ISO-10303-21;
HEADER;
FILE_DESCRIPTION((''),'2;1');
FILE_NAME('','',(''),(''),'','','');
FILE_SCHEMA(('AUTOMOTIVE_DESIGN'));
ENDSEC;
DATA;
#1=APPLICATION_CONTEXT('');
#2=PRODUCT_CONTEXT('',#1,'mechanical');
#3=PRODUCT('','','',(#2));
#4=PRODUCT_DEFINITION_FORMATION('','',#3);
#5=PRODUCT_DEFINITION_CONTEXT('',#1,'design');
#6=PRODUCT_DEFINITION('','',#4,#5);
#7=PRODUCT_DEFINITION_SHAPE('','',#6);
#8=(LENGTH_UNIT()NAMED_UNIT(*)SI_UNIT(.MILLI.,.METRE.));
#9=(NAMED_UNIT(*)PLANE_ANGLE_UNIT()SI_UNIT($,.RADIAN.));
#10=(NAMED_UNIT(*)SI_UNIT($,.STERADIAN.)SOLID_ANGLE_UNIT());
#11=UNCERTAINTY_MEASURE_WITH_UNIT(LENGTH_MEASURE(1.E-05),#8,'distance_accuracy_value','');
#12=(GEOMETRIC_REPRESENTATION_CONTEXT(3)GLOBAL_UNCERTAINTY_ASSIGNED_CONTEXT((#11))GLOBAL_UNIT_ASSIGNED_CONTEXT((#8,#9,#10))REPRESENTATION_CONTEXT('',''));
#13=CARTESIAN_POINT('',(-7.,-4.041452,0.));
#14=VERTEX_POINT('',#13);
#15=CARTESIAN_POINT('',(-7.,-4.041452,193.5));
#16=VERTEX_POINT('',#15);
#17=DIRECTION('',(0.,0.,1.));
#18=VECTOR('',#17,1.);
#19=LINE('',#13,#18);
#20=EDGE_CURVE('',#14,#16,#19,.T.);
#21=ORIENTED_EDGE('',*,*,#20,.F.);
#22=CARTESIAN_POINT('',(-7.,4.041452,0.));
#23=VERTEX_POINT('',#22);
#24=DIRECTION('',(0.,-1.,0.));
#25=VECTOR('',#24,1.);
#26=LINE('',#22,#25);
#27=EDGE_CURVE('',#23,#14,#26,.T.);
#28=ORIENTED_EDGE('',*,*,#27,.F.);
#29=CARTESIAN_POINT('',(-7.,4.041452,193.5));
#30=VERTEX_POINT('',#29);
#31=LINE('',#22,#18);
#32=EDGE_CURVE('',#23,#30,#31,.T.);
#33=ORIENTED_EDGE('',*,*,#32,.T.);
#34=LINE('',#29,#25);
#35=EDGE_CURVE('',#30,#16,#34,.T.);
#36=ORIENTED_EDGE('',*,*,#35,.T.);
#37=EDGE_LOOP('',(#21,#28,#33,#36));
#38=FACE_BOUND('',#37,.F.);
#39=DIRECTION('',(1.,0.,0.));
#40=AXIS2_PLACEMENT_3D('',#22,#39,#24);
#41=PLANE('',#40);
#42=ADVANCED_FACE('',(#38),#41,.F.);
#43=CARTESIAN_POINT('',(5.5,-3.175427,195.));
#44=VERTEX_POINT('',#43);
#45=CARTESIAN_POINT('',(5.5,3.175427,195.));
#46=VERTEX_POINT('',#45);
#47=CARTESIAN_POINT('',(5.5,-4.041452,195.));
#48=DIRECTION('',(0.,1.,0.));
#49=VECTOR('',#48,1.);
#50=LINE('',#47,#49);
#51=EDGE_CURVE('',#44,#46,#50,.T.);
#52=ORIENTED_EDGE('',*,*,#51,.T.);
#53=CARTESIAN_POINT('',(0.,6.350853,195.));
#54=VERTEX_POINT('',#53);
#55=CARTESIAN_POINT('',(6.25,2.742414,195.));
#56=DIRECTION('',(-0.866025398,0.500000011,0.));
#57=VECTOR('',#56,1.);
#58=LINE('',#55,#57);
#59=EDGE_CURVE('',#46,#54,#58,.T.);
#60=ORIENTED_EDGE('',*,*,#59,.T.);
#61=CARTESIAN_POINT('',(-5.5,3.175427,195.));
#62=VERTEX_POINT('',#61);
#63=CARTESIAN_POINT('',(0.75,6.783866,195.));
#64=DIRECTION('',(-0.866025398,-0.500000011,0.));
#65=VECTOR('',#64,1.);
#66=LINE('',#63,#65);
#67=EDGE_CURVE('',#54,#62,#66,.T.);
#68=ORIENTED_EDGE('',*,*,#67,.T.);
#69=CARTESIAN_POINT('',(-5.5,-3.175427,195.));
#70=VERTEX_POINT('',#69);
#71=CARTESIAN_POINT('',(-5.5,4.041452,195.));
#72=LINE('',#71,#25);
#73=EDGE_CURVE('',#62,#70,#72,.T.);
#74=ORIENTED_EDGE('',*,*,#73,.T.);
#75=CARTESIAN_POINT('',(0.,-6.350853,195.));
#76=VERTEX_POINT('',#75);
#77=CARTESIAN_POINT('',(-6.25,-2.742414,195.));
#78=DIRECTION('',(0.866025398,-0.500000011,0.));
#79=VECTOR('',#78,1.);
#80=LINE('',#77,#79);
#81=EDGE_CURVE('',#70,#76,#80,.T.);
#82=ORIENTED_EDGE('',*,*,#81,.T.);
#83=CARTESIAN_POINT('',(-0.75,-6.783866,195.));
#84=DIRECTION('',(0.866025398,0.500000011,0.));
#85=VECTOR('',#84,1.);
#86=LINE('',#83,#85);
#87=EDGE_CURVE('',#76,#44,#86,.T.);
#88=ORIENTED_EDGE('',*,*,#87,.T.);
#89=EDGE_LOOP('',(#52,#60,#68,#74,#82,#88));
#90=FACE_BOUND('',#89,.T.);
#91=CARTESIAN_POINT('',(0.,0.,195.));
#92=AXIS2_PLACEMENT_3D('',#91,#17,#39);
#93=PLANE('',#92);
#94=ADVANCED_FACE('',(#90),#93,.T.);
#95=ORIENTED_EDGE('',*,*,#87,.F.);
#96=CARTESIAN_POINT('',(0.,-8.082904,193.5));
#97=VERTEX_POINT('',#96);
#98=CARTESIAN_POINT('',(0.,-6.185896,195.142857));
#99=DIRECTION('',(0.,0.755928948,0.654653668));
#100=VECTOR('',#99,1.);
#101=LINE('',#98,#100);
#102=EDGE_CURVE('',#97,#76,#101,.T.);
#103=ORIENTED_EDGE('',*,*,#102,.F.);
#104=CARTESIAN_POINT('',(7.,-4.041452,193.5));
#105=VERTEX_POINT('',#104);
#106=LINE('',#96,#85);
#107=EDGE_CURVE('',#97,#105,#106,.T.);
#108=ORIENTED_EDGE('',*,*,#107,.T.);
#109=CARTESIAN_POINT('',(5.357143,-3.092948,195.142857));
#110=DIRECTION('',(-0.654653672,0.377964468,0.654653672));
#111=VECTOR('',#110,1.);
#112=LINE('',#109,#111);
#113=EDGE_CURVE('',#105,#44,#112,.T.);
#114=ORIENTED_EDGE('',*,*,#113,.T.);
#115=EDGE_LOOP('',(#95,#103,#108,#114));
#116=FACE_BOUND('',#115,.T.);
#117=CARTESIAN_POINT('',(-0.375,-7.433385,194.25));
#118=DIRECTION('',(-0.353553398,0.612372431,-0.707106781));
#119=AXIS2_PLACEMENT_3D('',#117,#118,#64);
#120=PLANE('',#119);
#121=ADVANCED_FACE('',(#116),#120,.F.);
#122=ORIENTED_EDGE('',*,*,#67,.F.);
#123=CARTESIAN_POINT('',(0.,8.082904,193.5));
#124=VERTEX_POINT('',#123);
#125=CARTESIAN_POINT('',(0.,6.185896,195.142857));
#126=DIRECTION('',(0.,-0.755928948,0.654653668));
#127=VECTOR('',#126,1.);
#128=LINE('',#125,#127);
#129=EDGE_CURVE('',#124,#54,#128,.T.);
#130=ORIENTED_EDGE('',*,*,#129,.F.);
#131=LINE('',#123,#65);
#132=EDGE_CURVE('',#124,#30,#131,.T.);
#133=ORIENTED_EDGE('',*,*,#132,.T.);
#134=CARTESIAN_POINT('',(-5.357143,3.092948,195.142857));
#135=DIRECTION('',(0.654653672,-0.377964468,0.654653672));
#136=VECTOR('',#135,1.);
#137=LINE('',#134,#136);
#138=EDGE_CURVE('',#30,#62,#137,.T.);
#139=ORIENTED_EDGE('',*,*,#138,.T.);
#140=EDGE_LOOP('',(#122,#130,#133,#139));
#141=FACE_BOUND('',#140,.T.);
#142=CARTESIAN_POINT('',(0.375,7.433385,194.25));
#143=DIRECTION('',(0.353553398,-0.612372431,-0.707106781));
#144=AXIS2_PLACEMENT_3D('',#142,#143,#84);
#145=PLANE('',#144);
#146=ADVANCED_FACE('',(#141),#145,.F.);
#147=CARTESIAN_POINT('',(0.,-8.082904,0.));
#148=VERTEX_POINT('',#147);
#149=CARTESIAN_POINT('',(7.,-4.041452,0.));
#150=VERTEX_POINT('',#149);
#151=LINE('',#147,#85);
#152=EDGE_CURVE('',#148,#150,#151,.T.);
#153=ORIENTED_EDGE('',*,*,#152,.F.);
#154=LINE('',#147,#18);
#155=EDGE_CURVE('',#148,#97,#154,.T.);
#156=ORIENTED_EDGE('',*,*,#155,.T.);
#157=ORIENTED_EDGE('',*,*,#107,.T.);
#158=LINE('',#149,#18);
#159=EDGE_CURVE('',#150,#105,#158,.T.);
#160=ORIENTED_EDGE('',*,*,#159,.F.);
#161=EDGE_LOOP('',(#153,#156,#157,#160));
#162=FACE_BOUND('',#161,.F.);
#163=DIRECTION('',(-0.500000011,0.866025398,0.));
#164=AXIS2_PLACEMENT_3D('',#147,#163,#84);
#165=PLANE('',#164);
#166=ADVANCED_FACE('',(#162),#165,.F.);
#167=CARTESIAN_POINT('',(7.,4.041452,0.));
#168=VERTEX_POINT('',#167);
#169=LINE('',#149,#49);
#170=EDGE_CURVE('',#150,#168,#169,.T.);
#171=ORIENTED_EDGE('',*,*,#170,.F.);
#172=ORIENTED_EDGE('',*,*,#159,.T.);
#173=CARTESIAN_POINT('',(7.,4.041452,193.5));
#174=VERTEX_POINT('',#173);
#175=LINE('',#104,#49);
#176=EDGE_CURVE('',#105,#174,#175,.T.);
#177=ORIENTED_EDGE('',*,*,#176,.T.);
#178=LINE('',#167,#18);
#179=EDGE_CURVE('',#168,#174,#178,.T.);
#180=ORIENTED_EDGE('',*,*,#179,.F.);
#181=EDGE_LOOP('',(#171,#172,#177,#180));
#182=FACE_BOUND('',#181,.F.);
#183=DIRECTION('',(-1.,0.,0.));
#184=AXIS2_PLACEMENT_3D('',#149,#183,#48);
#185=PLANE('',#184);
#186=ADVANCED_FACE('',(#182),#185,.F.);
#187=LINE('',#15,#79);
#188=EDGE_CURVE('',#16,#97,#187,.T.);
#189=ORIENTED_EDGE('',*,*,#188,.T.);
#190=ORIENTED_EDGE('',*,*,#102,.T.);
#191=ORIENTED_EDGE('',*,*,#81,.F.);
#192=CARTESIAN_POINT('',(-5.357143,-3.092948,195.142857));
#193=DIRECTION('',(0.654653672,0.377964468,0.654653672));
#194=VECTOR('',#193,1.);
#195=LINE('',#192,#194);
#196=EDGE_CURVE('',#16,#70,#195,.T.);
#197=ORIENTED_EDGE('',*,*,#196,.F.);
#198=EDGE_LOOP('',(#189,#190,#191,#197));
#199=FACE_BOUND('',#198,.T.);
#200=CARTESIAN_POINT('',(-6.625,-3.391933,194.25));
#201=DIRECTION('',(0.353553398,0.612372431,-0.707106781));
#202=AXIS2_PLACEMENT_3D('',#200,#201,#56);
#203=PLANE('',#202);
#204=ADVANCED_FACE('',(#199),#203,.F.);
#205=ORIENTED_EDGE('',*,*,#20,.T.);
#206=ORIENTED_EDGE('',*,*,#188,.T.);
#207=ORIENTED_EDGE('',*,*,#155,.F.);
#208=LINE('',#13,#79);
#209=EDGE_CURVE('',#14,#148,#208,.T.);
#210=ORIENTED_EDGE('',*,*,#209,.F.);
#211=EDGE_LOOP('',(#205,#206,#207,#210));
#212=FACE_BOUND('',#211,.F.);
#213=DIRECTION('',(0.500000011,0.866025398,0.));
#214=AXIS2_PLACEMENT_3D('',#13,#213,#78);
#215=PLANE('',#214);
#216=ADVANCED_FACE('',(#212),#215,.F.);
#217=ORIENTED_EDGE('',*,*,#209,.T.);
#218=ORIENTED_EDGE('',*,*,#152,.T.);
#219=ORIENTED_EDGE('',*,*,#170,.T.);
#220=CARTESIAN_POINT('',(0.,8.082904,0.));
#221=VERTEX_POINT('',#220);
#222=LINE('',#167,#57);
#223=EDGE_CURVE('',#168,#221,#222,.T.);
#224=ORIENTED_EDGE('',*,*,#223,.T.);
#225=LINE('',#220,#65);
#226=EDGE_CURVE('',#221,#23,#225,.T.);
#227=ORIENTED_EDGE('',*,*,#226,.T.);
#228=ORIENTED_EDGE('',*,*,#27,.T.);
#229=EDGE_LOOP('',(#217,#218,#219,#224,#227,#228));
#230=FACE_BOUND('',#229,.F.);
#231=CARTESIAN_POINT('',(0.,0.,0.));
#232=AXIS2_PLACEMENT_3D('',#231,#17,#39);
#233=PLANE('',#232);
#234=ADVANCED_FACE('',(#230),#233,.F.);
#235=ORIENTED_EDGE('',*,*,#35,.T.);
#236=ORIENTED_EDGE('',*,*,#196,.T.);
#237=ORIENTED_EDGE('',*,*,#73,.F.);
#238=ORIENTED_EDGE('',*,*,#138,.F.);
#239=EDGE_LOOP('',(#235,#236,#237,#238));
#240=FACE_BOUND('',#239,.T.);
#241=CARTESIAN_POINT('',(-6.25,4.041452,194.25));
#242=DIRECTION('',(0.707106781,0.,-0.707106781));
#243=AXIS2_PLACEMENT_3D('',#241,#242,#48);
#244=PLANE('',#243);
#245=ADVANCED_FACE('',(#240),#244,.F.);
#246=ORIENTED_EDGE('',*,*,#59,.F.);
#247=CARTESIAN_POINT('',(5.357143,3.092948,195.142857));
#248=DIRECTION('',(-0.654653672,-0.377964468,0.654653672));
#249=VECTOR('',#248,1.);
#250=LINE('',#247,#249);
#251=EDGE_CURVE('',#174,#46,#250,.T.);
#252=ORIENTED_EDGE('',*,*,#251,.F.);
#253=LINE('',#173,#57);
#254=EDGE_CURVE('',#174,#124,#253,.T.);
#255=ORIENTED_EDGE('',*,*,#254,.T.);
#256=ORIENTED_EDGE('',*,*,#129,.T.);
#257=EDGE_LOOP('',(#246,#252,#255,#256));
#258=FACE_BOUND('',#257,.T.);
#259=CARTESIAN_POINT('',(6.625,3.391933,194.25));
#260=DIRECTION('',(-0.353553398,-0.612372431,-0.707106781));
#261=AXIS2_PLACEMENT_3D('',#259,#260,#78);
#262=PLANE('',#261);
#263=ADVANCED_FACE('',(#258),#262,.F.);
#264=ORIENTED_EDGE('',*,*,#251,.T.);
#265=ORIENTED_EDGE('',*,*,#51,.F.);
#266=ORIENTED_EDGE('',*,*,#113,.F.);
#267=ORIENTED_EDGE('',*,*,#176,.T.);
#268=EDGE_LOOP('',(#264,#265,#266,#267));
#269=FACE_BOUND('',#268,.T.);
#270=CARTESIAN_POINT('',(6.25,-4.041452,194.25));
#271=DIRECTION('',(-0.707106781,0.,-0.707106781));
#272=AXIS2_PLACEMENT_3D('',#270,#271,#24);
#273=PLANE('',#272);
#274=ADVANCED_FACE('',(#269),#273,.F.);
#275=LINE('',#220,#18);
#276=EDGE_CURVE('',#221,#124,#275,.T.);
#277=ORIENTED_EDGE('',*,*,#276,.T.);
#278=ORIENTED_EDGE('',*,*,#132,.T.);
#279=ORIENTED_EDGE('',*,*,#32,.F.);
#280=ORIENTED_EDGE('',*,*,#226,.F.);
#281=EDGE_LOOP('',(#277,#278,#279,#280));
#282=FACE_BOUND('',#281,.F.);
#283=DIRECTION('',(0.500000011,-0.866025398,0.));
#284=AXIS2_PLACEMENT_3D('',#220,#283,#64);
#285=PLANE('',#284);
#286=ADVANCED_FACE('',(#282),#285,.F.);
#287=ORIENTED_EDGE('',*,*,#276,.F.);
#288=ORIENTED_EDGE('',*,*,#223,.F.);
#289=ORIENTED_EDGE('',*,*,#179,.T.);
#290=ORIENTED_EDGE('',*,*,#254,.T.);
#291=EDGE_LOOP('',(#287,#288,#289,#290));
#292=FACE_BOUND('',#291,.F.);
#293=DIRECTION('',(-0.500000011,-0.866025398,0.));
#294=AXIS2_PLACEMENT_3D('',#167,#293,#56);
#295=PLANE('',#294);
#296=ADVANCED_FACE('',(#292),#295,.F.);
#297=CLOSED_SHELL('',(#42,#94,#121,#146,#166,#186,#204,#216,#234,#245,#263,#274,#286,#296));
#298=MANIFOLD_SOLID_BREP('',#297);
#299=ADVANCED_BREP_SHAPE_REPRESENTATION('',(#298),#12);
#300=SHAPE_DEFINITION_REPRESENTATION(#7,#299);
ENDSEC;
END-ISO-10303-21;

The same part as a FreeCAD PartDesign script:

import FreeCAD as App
import Part
import Sketcher
Q = App.Units.Quantity


def edges_at(feature, points):
    """Names of the edges that pass closest to the given points."""
    edges = feature.Shape.Edges
    near = lambda p: min(range(len(edges)), key=lambda i: edges[i].distToShape(Part.Vertex(*p))[0])
    return sorted({f"Edge{near(p) + 1}" for p in points})

doc = App.newDocument("Part")
params = doc.addObject("Spreadsheet::Sheet", "Params")
for row, (alias, value) in enumerate([
    ("pad1_length", "195 mm"),
    ("chamfer_size", "1.5 mm"),
], start=1):
    params.set(f"A{row}", alias)
    params.set(f"B{row}", "=" + value)
    params.setAlias(f"B{row}", alias)

body = doc.addObject("PartDesign::Body", "Body")

sketch1 = doc.addObject("Sketcher::SketchObject", "Sketch")
body.addObject(sketch1)
sketch1.AttachmentSupport = (doc.XY_Plane, [""])
sketch1.MapMode = "FlatFace"
sketch1.addGeometry(Part.LineSegment(App.Vector(7, -4, 0), App.Vector(7, 4, 0)), False)
sketch1.addGeometry(Part.LineSegment(App.Vector(7, 4, 0), App.Vector(0, 8, 0)), False)
sketch1.addGeometry(Part.LineSegment(App.Vector(0, 8, 0), App.Vector(-7, 4, 0)), False)
sketch1.addGeometry(Part.LineSegment(App.Vector(-7, 4, 0), App.Vector(-7, -4, 0)), False)
sketch1.addGeometry(Part.LineSegment(App.Vector(-7, -4, 0), App.Vector(0, -8, 0)), False)
sketch1.addGeometry(Part.LineSegment(App.Vector(0, -8, 0), App.Vector(7, -4, 0)), False)
sketch1.addConstraint(Sketcher.Constraint("Coincident", 0, 2, 1, 1))
sketch1.addConstraint(Sketcher.Constraint("Coincident", 1, 2, 2, 1))
sketch1.addConstraint(Sketcher.Constraint("Coincident", 2, 2, 3, 1))
sketch1.addConstraint(Sketcher.Constraint("Coincident", 3, 2, 4, 1))
sketch1.addConstraint(Sketcher.Constraint("Coincident", 4, 2, 5, 1))
sketch1.addConstraint(Sketcher.Constraint("Coincident", 5, 2, 0, 1))
sketch1.addConstraint(Sketcher.Constraint("Vertical", 0))
sketch1.addConstraint(Sketcher.Constraint("Vertical", 3))
sketch1.addConstraint(Sketcher.Constraint("Symmetric", 0, 2, 3, 2, -1, 1))
sketch1.addConstraint(Sketcher.Constraint("Symmetric", 1, 2, 4, 2, -1, 1))
sketch1.addConstraint(Sketcher.Constraint("PointOnObject", 1, 2, -2))
sketch1.addConstraint(Sketcher.Constraint("Parallel", 2, 5))
sketch1.addConstraint(Sketcher.Constraint("Horizontal", 0, 2, 2, 2))
sketch1.addConstraint(Sketcher.Constraint("Angle", 1, Q("149.999999 deg")))
sketch1.addConstraint(Sketcher.Constraint("DistanceX", -1, 1, 0, 2, 7.0))
sketch1.addConstraint(Sketcher.Constraint("DistanceY", 0, 1, 0, 2, 8.082904))
pad1 = doc.addObject("PartDesign::Pad", "Pad")
body.addObject(pad1)
pad1.Profile = sketch1
pad1.setExpression("Length", "Params.pad1_length")
doc.recompute()

chamfer = doc.addObject("PartDesign::Chamfer", "Chamfer")
body.addObject(chamfer)
chamfer.Base = (pad1, edges_at(pad1, [
    (-3.5, -6.062, 195),
    (3.5, -6.062, 195),
    (7, 0, 195),
    (3.5, 6.062, 195),
    (-3.5, 6.062, 195),
    (-7, 0, 195),
]))
chamfer.setExpression("Size", "Params.chamfer_size")

doc.recompute()
